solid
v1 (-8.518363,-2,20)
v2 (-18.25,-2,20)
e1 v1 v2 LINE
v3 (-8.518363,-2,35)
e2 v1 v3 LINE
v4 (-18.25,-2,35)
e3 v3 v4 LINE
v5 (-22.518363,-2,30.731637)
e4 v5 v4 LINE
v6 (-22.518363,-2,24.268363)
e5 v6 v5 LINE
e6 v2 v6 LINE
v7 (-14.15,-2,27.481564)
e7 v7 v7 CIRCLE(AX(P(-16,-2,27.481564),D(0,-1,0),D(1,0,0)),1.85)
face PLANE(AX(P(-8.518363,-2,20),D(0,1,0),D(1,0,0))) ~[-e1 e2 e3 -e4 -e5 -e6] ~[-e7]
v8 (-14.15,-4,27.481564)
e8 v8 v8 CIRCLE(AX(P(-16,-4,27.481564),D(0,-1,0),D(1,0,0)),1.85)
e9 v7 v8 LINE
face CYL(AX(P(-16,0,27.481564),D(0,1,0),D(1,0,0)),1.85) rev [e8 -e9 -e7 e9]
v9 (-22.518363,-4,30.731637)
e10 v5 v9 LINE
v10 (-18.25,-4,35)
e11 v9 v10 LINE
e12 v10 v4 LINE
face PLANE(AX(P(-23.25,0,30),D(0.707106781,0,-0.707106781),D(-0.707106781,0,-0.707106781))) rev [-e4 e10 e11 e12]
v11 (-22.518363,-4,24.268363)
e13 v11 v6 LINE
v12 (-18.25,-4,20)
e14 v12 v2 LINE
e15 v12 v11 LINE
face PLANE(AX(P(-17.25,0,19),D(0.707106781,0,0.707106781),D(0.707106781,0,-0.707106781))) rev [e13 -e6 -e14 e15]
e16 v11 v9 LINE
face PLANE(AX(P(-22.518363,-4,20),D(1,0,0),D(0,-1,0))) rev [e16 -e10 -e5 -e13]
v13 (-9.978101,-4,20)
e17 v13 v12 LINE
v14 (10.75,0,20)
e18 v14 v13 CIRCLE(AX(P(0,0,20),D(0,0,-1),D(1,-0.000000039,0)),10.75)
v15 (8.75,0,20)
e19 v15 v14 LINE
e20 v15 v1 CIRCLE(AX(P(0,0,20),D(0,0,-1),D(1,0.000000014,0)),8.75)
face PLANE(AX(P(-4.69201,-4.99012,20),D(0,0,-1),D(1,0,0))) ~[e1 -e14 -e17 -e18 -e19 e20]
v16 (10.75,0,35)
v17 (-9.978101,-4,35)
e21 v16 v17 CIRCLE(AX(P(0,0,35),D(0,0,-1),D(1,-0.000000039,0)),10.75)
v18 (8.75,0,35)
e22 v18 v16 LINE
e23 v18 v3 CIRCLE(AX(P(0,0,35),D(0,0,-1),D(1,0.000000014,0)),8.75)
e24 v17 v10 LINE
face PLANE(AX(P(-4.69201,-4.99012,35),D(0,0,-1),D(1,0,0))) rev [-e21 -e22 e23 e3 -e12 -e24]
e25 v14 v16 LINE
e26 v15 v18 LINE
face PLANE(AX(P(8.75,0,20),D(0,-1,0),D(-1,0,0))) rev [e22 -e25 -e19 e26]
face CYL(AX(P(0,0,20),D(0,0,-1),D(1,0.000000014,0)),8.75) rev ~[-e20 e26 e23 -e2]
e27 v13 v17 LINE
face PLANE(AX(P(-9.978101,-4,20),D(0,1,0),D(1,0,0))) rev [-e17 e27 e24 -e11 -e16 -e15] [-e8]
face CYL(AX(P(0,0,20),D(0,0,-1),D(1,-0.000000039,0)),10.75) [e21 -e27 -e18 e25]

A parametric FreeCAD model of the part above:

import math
import FreeCAD as App
import Part
import Sketcher

V = App.Vector
Q = App.Units.Quantity

doc = App.newDocument("Part")
body = doc.addObject("PartDesign::Body", "Body")

# Sketch on XZ plane
sketch1 = body.newObject("Sketcher::SketchObject", "Sketch")
sketch1.AttachmentSupport = (doc.getObject("XZ_Plane"), [""])
sketch1.MapMode = "FlatFace"
sketch1.addGeometry(Part.LineSegment(V(11.8, 19, 0), V(11.8, 36, 0)), False)
sketch1.addGeometry(Part.LineSegment(V(11.8, 36, 0), V(-17.2, 36, 0)), False)
sketch1.addGeometry(Part.LineSegment(V(-17.2, 36, 0), V(-23.2, 30, 0)), False)
sketch1.addGeometry(Part.LineSegment(V(-23.2, 30, 0), V(-23.2, 25, 0)), False)
sketch1.addGeometry(Part.LineSegment(V(-23.2, 25, 0), V(-17.2, 19, 0)), False)
sketch1.addGeometry(Part.LineSegment(V(-17.2, 19, 0), V(11.8, 19, 0)), False)
sketch1.addGeometry(Part.Circle(V(-16, 27.5, 0), V(0, 0, 1), 1.9), False)
sketch1.addConstraint(Sketcher.Constraint("Coincident", 0, 2, 1, 1))
sketch1.addConstraint(Sketcher.Constraint("Coincident", 1, 2, 2, 1))
sketch1.addConstraint(Sketcher.Constraint("Coincident", 2, 2, 3, 1))
sketch1.addConstraint(Sketcher.Constraint("Coincident", 3, 2, 4, 1))
sketch1.addConstraint(Sketcher.Constraint("Coincident", 4, 2, 5, 1))
sketch1.addConstraint(Sketcher.Constraint("Coincident", 5, 2, 0, 1))
sketch1.addConstraint(Sketcher.Constraint("Vertical", 0))
sketch1.addConstraint(Sketcher.Constraint("Horizontal", 1))
sketch1.addConstraint(Sketcher.Constraint("Vertical", 3))
sketch1.addConstraint(Sketcher.Constraint("Horizontal", 5))
sketch1.addConstraint(Sketcher.Constraint("Perpendicular", 2, 4))
sketch1.addConstraint(Sketcher.Constraint("Vertical", 1, 2, 4, 2))
sketch1.addConstraint(Sketcher.Constraint("Equal", 2, 4))
sketch1.addConstraint(Sketcher.Constraint("Diameter", 6, Q("3.7 mm")))
sketch1.addConstraint(Sketcher.Constraint("DistanceX", 1, 2, 1, 1, Q("29 mm")))
sketch1.addConstraint(Sketcher.Constraint("DistanceY", 0, 1, 0, 2, Q("17 mm")))
sketch1.addConstraint(Sketcher.Constraint("DistanceY", 3, 2, 3, 1, Q("5 mm")))
sketch1.addConstraint(Sketcher.Constraint("DistanceX", 6, 3, -1, 1, Q("16 mm")))
sketch1.addConstraint(Sketcher.Constraint("DistanceY", -1, 1, 0, 2, Q("36 mm")))
sketch1.addConstraint(Sketcher.Constraint("DistanceX", -1, 1, 0, 2, Q("11.75 mm")))
sketch1.addConstraint(Sketcher.Constraint("DistanceY", -1, 1, 6, 3, Q("27.481564 mm")))
pad1 = body.newObject("PartDesign::Pad", "Pad")
pad1.Profile = sketch1
pad1.Length = 12
pad1.Reversed = True
body2 = doc.addObject("PartDesign::Body", "Body001")

# Sketch on XZ plane
sketch2 = body2.newObject("Sketcher::SketchObject", "Sketch001")
sketch2.AttachmentSupport = (doc.getObject("XZ_Plane001"), [""])
sketch2.MapMode = "FlatFace"
sketch2.AttachmentOffset = App.Placement(V(0, 0, -18), App.Rotation())
sketch2.addGeometry(Part.Circle(V(-16, 28, 0), V(0, 0, 1), 5), False)
sketch2.addConstraint(Sketcher.Constraint("Diameter", 0, Q("10 mm")))
sketch2.addConstraint(Sketcher.Constraint("DistanceX", 0, 3, -1, 1, Q("16 mm")))
sketch2.addConstraint(Sketcher.Constraint("DistanceY", -1, 1, 0, 3, Q("27.5 mm")))
pad2 = body2.newObject("PartDesign::Pad", "Pad001")
pad2.Profile = sketch2
pad2.Length = 1
body3 = doc.addObject("PartDesign::Body", "Body002")

# Sketch on XY plane
sketch3 = body3.newObject("Sketcher::SketchObject", "Sketch002")
sketch3.AttachmentSupport = (doc.getObject("XY_Plane002"), [""])
sketch3.MapMode = "FlatFace"
sketch3.AttachmentOffset = App.Placement(V(0, 0, 50), App.Rotation())
sketch3.addGeometry(Part.ArcOfCircle(Part.Circle(V(0, 0, 0), V(0, 0, 1), 8.8), math.radians(0), math.radians(167)), False)
sketch3.addGeometry(Part.LineSegment(V(8.8, 0, 0), V(10.8, 0, 0)), False)
sketch3.addGeometry(Part.ArcOfCircle(Part.Circle(V(0, 0, 0), V(0, 0, 1), 10.8), math.radians(0), math.radians(158)), False)
sketch3.addGeometry(Part.LineSegment(V(-10, 4, 0), V(-22.5, 4, 0)), False)
sketch3.addGeometry(Part.LineSegment(V(-22.5, 4, 0), V(-22.5, 2, 0)), False)
sketch3.addGeometry(Part.LineSegment(V(-22.5, 2, 0), V(-8.5, 2, 0)), False)
sketch3.addConstraint(Sketcher.Constraint("Coincident", 0, 1, 1, 1))
sketch3.addConstraint(Sketcher.Constraint("Coincident", 1, 2, 2, 1))
sketch3.addConstraint(Sketcher.Constraint("Coincident", 2, 2, 3, 1))
sketch3.addConstraint(Sketcher.Constraint("Coincident", 3, 2, 4, 1))
sketch3.addConstraint(Sketcher.Constraint("Coincident", 4, 2, 5, 1))
sketch3.addConstraint(Sketcher.Constraint("Coincident", 5, 2, 0, 2))
sketch3.addConstraint(Sketcher.Constraint("Horizontal", 1))
sketch3.addConstraint(Sketcher.Constraint("Horizontal", 3))
sketch3.addConstraint(Sketcher.Constraint("Vertical", 4))
sketch3.addConstraint(Sketcher.Constraint("Horizontal", 5))
sketch3.addConstraint(Sketcher.Constraint("Coincident", 0, 3, -1, 1))
sketch3.addConstraint(Sketcher.Constraint("Coincident", 2, 3, -1, 1))
sketch3.addConstraint(Sketcher.Constraint("PointOnObject", 0, 1, -1))
sketch3.addConstraint(Sketcher.Constraint("Equal", 1, 4))
sketch3.addConstraint(Sketcher.Constraint("DistanceX", 1, 1, 1, 2, Q("2 mm")))
sketch3.addConstraint(Sketcher.Constraint("DistanceX", 5, 1, 5, 2, Q("14 mm")))
sketch3.addConstraint(Sketcher.Constraint("Radius", 0, Q("8.75 mm")))
sketch3.addConstraint(Sketcher.Constraint("DistanceY", -1, 1, 2, 2, Q("4 mm")))
pad3 = body3.newObject("PartDesign::Pad", "Pad002")
pad3.Profile = sketch3
pad3.Length = 15
body4 = doc.addObject("PartDesign::Body", "Body003")
body4.AllowCompound = True
doc.recompute()

body3.Placement = App.Placement(V(0, 0, -30), App.Rotation(V(0, 0, 1), 0))
boolean = body4.newObject("PartDesign::Boolean", "Boolean")
boolean.Type = "Fuse"
boolean.addObjects([body3])
doc.recompute()

boolean2 = body4.newObject("PartDesign::Boolean", "Boolean001")
boolean2.Type = "Fuse"
boolean2.addObjects([body2])
doc.recompute()

boolean3 = body4.newObject("PartDesign::Boolean", "Boolean002")
boolean3.Type = "Common"
boolean3.addObjects([body])
body5 = doc.addObject("PartDesign::Body", "Body004")
doc.recompute()

mirroring = doc.addObject("Part::Mirroring", "Mirroring")
mirroring.Source = body4
mirroring.Base = V(0, 0, 0)
mirroring.Normal = V(0, 1, 0)
body5.BaseFeature = mirroring
doc.recompute()
body4.Visibility = False
mirroring.Visibility = False

doc.recompute()
